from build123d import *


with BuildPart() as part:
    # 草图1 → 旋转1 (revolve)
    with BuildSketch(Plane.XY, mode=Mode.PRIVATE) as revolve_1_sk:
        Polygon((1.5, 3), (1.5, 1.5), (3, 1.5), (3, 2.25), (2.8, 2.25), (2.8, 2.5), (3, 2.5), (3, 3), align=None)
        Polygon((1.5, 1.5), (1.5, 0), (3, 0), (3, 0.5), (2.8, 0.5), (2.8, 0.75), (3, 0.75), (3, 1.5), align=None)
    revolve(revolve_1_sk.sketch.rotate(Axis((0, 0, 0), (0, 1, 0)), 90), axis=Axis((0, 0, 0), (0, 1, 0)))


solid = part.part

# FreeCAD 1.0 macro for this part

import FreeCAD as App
import Part
import Sketcher

V = App.Vector

doc = App.newDocument("Part")
params = doc.addObject("Spreadsheet::Sheet", "Params")
for row, (alias, value) in enumerate([
    ("sketch1_height", "3 mm"),
    ("sketch1_width", "1.5 mm"),
    ("sketch1_width2", "0.2 mm"),
    ("sketch1_height2", "0.5 mm"),
    ("revolution_angle", "360 deg"),
], start=1):
    params.set(f"A{row}", alias)
    params.set(f"B{row}", "=" + value)
    params.setAlias(f"B{row}", alias)

body = doc.addObject("PartDesign::Body", "Body")

sketch1 = body.newObject("Sketcher::SketchObject", "Sketch")
sketch1.AttachmentSupport = (doc.getObject("XY_Plane"), [""])
sketch1.MapMode = "FlatFace"
sketch1.addGeometry([
    Part.LineSegment(V(1.5, 3, 0), V(1.5, 0, 0)),
    Part.LineSegment(V(1.5, 0, 0), V(3, 0, 0)),
    Part.LineSegment(V(3, 0, 0), V(3, 0.5, 0)),
    Part.LineSegment(V(3, 0.5, 0), V(2.8, 0.5, 0)),
    Part.LineSegment(V(2.8, 0.5, 0), V(2.8, 0.75, 0)),
    Part.LineSegment(V(2.8, 0.75, 0), V(3, 0.75, 0)),
    Part.LineSegment(V(3, 0.75, 0), V(3, 2.25, 0)),
    Part.LineSegment(V(3, 2.25, 0), V(2.8, 2.25, 0)),
    Part.LineSegment(V(2.8, 2.25, 0), V(2.8, 2.5, 0)),
    Part.LineSegment(V(2.8, 2.5, 0), V(3, 2.5, 0)),
    Part.LineSegment(V(3, 2.5, 0), V(3, 3, 0)),
    Part.LineSegment(V(3, 3, 0), V(1.5, 3, 0)),
], False)
sketch1.addConstraint([
    Sketcher.Constraint("Coincident", 0, 2, 1, 1),
    Sketcher.Constraint("Coincident", 1, 2, 2, 1),
    Sketcher.Constraint("Coincident", 2, 2, 3, 1),
    Sketcher.Constraint("Coincident", 3, 2, 4, 1),
    Sketcher.Constraint("Coincident", 4, 2, 5, 1),
    Sketcher.Constraint("Coincident", 5, 2, 6, 1),
    Sketcher.Constraint("Coincident", 6, 2, 7, 1),
    Sketcher.Constraint("Coincident", 7, 2, 8, 1),
    Sketcher.Constraint("Coincident", 8, 2, 9, 1),
    Sketcher.Constraint("Coincident", 9, 2, 10, 1),
    Sketcher.Constraint("Coincident", 10, 2, 11, 1),
    Sketcher.Constraint("Coincident", 11, 2, 0, 1),
    Sketcher.Constraint("Vertical", 0),
    Sketcher.Constraint("Horizontal", 1),
    Sketcher.Constraint("Vertical", 2),
    Sketcher.Constraint("Horizontal", 3),
    Sketcher.Constraint("Vertical", 4),
    Sketcher.Constraint("Horizontal", 5),
    Sketcher.Constraint("Vertical", 6),
    Sketcher.Constraint("Horizontal", 7),
    Sketcher.Constraint("Vertical", 8),
    Sketcher.Constraint("Horizontal", 9),
    Sketcher.Constraint("Vertical", 10),
    Sketcher.Constraint("Horizontal", 11),
    Sketcher.Constraint("PointOnObject", 0, 2, -1),
    Sketcher.Constraint("Vertical", 2, 2, 5, 2),
    Sketcher.Constraint("Vertical", 4, 2, 7, 2),
    Sketcher.Constraint("Vertical", 6, 2, 9, 2),
    Sketcher.Constraint("Equal", 11, 6),
    Sketcher.Constraint("Equal", 4, 8),
    Sketcher.Constraint("Equal", 2, 10),
    Sketcher.Constraint("DistanceY", 0, 2, 0, 1, 3.0),
    Sketcher.Constraint("DistanceX", 1, 1, 1, 2, 1.5),
    Sketcher.Constraint("DistanceX", 3, 2, 3, 1, 0.2),
    Sketcher.Constraint("DistanceY", 2, 1, 2, 2, 0.5),
    Sketcher.Constraint("DistanceX", -1, 1, 1, 2, 3.0),
])
sketch1.setExpression("Constraints[31]", "Params.sketch1_height")
sketch1.setExpression("Constraints[32]", "Params.sketch1_width")
sketch1.setExpression("Constraints[33]", "Params.sketch1_width2")
sketch1.setExpression("Constraints[34]", "Params.sketch1_height2")
revolution = body.newObject("PartDesign::Revolution", "Revolution")
revolution.Profile = sketch1
revolution.ReferenceAxis = (sketch1, ["V_Axis"])
revolution.setExpression("Angle", "Params.revolution_angle")

doc.recompute()
